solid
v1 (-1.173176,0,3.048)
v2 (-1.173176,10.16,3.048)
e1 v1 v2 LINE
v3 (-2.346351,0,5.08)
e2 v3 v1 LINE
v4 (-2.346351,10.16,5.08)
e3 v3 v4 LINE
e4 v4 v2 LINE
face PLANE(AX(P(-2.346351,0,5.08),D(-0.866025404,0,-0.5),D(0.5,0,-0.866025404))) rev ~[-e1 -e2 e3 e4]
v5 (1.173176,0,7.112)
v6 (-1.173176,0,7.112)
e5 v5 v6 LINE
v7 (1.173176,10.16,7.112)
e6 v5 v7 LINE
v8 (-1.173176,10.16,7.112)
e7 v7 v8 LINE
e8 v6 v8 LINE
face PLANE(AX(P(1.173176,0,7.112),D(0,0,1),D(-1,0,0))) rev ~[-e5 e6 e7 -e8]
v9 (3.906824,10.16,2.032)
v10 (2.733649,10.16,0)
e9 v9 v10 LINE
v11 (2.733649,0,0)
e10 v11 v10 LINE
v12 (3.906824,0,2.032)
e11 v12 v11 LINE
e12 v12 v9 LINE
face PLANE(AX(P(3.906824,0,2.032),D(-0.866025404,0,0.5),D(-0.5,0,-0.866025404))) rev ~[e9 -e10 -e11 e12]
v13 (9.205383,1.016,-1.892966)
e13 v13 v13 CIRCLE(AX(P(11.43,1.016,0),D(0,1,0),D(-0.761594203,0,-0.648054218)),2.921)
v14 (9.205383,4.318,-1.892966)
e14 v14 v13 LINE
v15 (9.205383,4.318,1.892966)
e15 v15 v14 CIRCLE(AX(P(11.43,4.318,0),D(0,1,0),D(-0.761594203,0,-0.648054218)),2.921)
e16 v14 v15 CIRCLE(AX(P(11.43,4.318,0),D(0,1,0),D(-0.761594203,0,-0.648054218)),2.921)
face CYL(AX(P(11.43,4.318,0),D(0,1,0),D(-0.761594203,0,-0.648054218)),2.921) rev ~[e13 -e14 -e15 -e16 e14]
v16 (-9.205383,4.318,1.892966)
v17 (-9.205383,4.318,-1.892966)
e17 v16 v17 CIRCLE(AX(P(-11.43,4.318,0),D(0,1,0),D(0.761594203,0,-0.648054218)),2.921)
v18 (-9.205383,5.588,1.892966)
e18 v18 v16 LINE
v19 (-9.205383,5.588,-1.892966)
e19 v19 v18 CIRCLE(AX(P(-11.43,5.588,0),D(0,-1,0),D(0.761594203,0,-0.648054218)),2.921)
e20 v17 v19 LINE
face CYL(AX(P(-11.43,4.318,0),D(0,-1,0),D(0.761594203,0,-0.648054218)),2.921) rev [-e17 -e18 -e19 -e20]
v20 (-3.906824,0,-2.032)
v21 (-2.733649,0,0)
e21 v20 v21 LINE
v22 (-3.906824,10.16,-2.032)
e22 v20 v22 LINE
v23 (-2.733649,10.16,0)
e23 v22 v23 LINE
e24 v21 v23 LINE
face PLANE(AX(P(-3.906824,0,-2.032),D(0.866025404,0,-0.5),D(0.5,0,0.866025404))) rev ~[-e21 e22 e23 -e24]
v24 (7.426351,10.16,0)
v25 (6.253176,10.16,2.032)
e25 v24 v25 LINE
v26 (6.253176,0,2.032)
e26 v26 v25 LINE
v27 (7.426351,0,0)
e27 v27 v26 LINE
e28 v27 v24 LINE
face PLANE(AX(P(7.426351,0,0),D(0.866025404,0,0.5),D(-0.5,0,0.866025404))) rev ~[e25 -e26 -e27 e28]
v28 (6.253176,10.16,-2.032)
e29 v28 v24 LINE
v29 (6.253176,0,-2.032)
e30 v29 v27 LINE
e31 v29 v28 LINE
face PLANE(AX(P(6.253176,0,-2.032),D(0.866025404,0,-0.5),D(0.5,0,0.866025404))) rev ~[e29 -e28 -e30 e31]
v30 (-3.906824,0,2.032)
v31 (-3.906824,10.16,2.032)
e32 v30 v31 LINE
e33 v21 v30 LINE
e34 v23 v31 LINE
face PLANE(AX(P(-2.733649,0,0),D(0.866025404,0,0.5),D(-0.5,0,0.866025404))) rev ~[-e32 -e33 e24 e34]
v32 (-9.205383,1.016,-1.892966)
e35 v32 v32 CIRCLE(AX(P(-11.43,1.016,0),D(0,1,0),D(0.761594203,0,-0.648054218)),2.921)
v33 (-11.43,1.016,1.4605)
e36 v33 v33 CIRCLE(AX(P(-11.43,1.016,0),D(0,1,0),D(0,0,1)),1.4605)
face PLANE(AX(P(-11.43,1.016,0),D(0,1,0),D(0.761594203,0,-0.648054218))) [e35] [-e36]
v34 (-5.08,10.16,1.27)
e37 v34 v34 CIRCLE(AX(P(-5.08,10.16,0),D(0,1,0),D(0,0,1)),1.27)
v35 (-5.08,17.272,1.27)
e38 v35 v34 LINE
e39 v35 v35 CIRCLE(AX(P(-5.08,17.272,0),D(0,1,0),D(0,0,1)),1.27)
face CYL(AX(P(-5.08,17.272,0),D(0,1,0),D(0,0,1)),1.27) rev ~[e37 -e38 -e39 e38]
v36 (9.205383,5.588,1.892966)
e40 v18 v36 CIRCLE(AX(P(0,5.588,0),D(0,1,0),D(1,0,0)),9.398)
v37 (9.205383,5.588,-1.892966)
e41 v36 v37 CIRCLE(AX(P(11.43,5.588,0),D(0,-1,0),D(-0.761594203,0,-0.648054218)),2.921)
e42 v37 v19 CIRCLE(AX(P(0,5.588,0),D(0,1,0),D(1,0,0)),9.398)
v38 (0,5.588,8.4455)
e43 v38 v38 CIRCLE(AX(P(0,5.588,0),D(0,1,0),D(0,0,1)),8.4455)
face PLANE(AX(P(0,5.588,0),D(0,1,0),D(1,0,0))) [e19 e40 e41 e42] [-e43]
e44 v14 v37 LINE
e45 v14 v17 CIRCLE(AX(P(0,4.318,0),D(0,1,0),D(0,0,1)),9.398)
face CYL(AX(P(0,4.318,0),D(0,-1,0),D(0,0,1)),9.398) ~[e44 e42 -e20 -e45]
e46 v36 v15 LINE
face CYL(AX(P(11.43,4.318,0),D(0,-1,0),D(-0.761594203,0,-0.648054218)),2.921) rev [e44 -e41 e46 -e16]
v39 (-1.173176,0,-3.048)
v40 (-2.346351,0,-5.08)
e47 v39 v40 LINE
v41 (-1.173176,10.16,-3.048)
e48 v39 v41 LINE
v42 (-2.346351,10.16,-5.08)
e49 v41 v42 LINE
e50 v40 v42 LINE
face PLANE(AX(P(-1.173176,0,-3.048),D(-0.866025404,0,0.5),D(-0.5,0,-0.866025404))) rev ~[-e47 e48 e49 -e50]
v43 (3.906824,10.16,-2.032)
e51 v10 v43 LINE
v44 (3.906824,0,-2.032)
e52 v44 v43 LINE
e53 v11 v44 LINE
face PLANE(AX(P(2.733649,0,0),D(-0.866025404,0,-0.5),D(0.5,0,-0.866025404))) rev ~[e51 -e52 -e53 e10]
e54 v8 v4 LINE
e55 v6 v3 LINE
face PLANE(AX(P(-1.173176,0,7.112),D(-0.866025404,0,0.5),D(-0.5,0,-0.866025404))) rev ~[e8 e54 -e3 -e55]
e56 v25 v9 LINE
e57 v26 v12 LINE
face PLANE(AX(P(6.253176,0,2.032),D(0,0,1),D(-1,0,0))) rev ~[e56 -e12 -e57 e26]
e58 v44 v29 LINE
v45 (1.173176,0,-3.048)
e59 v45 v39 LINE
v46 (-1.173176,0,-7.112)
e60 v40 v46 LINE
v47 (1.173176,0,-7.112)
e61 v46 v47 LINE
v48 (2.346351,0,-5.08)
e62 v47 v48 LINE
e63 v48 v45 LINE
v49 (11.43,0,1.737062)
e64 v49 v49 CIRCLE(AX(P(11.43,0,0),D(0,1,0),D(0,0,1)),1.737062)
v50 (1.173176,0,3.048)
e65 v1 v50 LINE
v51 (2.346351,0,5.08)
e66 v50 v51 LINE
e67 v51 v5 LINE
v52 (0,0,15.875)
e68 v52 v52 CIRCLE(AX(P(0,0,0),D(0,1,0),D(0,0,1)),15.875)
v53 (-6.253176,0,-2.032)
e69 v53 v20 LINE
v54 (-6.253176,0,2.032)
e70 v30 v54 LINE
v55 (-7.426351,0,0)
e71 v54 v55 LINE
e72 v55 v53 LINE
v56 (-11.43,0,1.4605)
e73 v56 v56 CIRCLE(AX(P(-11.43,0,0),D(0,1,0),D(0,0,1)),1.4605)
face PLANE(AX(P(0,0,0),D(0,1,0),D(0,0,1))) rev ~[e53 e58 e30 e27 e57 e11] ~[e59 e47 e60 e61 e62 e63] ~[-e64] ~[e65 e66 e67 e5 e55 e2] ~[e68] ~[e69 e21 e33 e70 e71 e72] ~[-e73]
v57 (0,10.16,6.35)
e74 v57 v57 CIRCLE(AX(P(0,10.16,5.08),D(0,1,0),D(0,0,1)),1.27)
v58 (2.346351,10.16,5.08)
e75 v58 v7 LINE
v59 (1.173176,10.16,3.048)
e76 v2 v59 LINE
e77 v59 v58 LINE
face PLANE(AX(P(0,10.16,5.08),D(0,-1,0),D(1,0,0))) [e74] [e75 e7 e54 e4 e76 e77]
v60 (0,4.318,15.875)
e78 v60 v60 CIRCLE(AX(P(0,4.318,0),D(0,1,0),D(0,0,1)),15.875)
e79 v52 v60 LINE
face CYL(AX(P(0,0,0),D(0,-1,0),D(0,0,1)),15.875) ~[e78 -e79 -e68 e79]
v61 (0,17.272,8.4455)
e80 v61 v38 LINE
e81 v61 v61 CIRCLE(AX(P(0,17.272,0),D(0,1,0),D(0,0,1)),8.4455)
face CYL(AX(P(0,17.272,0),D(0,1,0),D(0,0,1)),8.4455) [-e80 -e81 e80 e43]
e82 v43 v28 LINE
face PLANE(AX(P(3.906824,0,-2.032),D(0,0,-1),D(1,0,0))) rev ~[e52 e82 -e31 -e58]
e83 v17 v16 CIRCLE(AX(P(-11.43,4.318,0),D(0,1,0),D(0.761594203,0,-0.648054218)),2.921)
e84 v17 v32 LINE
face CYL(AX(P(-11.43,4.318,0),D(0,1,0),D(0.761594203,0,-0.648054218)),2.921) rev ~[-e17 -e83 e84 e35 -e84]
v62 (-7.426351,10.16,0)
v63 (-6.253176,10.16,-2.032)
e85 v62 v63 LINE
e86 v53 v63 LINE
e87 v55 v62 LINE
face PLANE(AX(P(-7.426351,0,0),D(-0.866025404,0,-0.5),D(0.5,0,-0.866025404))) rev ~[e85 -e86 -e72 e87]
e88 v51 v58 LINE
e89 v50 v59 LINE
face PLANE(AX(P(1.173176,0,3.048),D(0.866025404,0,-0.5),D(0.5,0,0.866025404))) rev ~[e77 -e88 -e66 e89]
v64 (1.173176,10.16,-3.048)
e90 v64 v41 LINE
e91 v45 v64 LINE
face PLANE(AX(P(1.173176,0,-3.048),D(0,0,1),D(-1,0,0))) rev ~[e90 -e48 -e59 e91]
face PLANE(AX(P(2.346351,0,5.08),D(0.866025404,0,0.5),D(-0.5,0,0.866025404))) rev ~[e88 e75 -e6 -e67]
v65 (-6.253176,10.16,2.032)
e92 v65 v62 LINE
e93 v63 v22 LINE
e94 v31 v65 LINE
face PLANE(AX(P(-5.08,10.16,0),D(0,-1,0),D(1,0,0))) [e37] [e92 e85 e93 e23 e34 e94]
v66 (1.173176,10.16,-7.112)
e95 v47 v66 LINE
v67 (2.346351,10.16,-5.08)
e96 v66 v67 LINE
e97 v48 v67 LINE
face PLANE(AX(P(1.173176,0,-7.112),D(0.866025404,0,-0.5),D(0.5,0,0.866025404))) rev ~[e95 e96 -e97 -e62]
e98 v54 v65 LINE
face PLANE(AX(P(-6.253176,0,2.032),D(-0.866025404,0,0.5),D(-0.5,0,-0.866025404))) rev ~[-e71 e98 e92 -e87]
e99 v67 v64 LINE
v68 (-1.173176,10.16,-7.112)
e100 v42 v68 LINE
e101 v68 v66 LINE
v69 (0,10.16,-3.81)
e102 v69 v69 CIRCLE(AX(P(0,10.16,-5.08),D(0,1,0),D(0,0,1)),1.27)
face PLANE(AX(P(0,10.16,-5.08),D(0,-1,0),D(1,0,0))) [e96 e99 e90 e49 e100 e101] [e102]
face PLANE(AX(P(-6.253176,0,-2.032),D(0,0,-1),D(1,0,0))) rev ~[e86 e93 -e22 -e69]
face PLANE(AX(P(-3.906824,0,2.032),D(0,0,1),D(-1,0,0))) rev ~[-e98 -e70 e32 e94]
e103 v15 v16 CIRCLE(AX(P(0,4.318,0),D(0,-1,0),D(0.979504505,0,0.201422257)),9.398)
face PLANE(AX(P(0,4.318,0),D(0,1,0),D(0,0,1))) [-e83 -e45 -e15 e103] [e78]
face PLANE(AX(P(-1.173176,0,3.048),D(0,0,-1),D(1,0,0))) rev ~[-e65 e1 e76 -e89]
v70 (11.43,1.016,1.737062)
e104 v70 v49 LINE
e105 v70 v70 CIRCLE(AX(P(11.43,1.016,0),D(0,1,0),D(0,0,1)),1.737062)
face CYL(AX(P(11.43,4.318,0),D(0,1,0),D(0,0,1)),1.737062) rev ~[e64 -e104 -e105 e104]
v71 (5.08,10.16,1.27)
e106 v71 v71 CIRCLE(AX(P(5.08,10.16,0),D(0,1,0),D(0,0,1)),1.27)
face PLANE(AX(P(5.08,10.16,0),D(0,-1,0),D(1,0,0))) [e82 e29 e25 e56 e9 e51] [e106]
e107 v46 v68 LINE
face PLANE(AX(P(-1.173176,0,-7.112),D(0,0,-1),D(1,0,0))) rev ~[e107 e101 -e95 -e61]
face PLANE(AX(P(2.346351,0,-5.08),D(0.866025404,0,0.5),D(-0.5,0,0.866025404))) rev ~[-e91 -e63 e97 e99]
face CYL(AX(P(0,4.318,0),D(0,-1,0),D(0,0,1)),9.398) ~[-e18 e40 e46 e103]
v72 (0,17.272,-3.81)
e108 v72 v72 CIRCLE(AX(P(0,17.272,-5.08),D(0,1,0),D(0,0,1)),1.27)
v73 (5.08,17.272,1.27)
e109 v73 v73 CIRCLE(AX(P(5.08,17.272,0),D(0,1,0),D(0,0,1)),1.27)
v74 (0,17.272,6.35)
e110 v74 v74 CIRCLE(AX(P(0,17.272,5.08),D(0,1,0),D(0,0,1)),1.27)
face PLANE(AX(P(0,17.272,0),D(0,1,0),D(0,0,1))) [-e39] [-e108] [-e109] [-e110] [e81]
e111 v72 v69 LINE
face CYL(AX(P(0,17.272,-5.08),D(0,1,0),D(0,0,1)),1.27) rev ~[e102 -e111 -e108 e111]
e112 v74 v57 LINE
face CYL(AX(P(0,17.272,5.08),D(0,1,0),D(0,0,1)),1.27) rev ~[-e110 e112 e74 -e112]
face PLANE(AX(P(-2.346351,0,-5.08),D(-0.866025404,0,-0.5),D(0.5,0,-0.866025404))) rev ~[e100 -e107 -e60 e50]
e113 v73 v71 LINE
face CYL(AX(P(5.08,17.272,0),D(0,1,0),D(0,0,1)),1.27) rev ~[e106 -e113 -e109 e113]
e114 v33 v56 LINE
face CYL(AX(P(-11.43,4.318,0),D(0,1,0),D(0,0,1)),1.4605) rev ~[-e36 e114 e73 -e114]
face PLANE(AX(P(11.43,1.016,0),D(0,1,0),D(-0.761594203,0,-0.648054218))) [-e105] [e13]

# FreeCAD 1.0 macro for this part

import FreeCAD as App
import Part
import Sketcher

V = App.Vector
Q = App.Units.Quantity


def add_polygon(sketch, points):
    """Adds a closed chain of lines whose ends are joined by coincident constraints."""
    first, n = sketch.GeometryCount, len(points)
    for a, b in zip(points, points[1:] + points[:1]):
        sketch.addGeometry(Part.LineSegment(App.Vector(*a, 0), App.Vector(*b, 0)), False)
    for i in range(n):
        sketch.addConstraint(Sketcher.Constraint("Coincident", first + i, 2, first + (i + 1) % n, 1))

doc = App.newDocument("Part")
body = doc.addObject("PartDesign::Body", "Body")

sketch1 = doc.addObject("Sketcher::SketchObject", "Sketch")
body.addObject(sketch1)
sketch1.AttachmentSupport = (doc.XZ_Plane, [""])
sketch1.MapMode = "FlatFace"
sketch1.addGeometry(Part.Circle(V(0, 0, 0), V(0, 0, 1), 15.875), False)
sketch1.addConstraint([
    Sketcher.Constraint("Coincident", 0, 3, -1, 1),
    Sketcher.Constraint("Diameter", 0, Q("1.25 in")),
])
pad1 = doc.addObject("PartDesign::Pad", "Pad")
body.addObject(pad1)
pad1.Profile = sketch1
pad1.Length = Q("0.17 in")
pad1.Reversed = True

sketch2 = doc.addObject("Sketcher::SketchObject", "Sketch001")
body.addObject(sketch2)
sketch2.AttachmentSupport = (doc.XZ_Plane, [""])
sketch2.MapMode = "FlatFace"
sketch2.AttachmentOffset = App.Placement(V(0, 0, -0.17 * 25.4), App.Rotation())
sketch2.addGeometry(Part.Circle(V(0, 0, 0), V(0, 0, 1), 9.398), False)
sketch2.addConstraint([
    Sketcher.Constraint("Coincident", 0, 3, -1, 1),
    Sketcher.Constraint("Diameter", 0, Q("0.74 in")),
])
pad2 = doc.addObject("PartDesign::Pad", "Pad001")
body.addObject(pad2)
pad2.Profile = sketch2
pad2.Length = Q("0.51 in")
pad2.Reversed = True

sketch3 = doc.addObject("Sketcher::SketchObject", "Sketch002")
body.addObject(sketch3)
sketch3.AttachmentSupport = (doc.XZ_Plane, [""])
sketch3.MapMode = "FlatFace"
sketch3.AttachmentOffset = App.Placement(V(0, 0, -0.17 * 25.4), App.Rotation())
sketch3.addGeometry([
    Part.Circle(V(-11.43, 0, 0), V(0, 0, 1), 2.921),
    Part.Circle(V(11.43, 0, 0), V(0, 0, 1), 2.921),
], False)
sketch3.addConstraint([
    Sketcher.Constraint("Equal", 0, 1),
    Sketcher.Constraint("Symmetric", 0, 3, 1, 3, -1, 1),
    Sketcher.Constraint("PointOnObject", 0, 3, -1),
    Sketcher.Constraint("Diameter", 0, Q("0.23 in")),
    Sketcher.Constraint("DistanceX", 0, 3, 1, 3, Q("0.9 in")),
])
pocket1 = doc.addObject("PartDesign::Pocket", "Pocket")
body.addObject(pocket1)
pocket1.Profile = sketch3
pocket1.Type = "TwoLengths"
pocket1.Length = 26.919826
pocket1.Length2 = Q("0.13 in")

sketch4 = doc.addObject("Sketcher::SketchObject", "Sketch003")
body.addObject(sketch4)
sketch4.AttachmentSupport = (doc.XZ_Plane, [""])
sketch4.MapMode = "FlatFace"
sketch4.AttachmentOffset = App.Placement(V(0, 0, -0.17 * 25.4), App.Rotation())
sketch4.addGeometry([
    Part.Circle(V(-11.43, 0, 0), V(0, 0, 1), 1.4605),
    Part.Circle(V(11.43, 0, 0), V(0, 0, 1), 1.737062),
], False)
sketch4.addConstraint([
    Sketcher.Constraint("Symmetric", 0, 3, 1, 3, -1, 1),
    Sketcher.Constraint("PointOnObject", 0, 3, -1),
    Sketcher.Constraint("Diameter", 0, Q("0.115 in")),
    Sketcher.Constraint("DistanceX", 0, 3, 1, 3, Q("0.9 in")),
    Sketcher.Constraint("Diameter", 1, 3.474125),
])
pocket2 = doc.addObject("PartDesign::Pocket", "Pocket001")
body.addObject(pocket2)
pocket2.Profile = sketch4
pocket2.Type = "ThroughAll"
pocket2.Midplane = True

sketch5 = doc.addObject("Sketcher::SketchObject", "Sketch004")
body.addObject(sketch5)
sketch5.AttachmentSupport = (doc.XZ_Plane, [""])
sketch5.MapMode = "FlatFace"
sketch5.AttachmentOffset = App.Placement(V(0, 0, -0.68 * 25.4), App.Rotation())
sketch5.addGeometry([
    Part.Circle(V(0, -5.08, 0), V(0, 0, 1), 1.27),
    Part.Circle(V(0, 5.08, 0), V(0, 0, 1), 1.27),
    Part.Circle(V(5.08, 0, 0), V(0, 0, 1), 1.27),
    Part.Circle(V(-5.08, 0, 0), V(0, 0, 1), 1.27),
], False)
sketch5.addConstraint([
    Sketcher.Constraint("Equal", 0, 1),
    Sketcher.Constraint("Equal", 1, 2),
    Sketcher.Constraint("Equal", 2, 3),
    Sketcher.Constraint("Symmetric", 0, 3, 1, 3, -1, 1),
    Sketcher.Constraint("Symmetric", 2, 3, 3, 3, -1, 1),
    Sketcher.Constraint("PointOnObject", 0, 3, -2),
    Sketcher.Constraint("PointOnObject", 2, 3, -1),
    Sketcher.Constraint("Diameter", 0, Q("0.1 in")),
    Sketcher.Constraint("DistanceY", 0, 3, -1, 1, Q("0.2 in")),
    Sketcher.Constraint("DistanceX", -1, 1, 2, 3, Q("0.2 in")),
])
pocket3 = doc.addObject("PartDesign::Pocket", "Pocket002")
body.addObject(pocket3)
pocket3.Profile = sketch5
pocket3.Type = "ThroughAll"
pocket3.Reversed = True

sketch6 = doc.addObject("Sketcher::SketchObject", "Sketch005")
body.addObject(sketch6)
sketch6.AttachmentSupport = (doc.XZ_Plane, [""])
sketch6.MapMode = "FlatFace"
sketch6.AttachmentOffset = App.Placement(V(0, 0, -0.68 * 25.4), App.Rotation())
sketch6.addGeometry([
    Part.Circle(V(0, 0, 0), V(0, 0, 1), 9.398),
    Part.Circle(V(0, 0, 0), V(0, 0, 1), 8.4455),
], False)
sketch6.addConstraint([
    Sketcher.Constraint("Coincident", 0, 3, -1, 1),
    Sketcher.Constraint("Coincident", 1, 3, -1, 1),
    Sketcher.Constraint("Diameter", 0, Q("0.74 in")),
    Sketcher.Constraint("Diameter", 1, Q("0.665 in")),
])
pocket4 = doc.addObject("PartDesign::Pocket", "Pocket003")
body.addObject(pocket4)
pocket4.Profile = sketch6
pocket4.Length = Q("0.46 in")
pocket4.Reversed = True

sketch7 = doc.addObject("Sketcher::SketchObject", "Sketch006")
body.addObject(sketch7)
sketch7.AttachmentSupport = (doc.XZ_Plane, [""])
sketch7.MapMode = "FlatFace"
add_polygon(sketch7, [(7.426351, 0), (6.253176, 2.032), (3.906824, 2.032), (2.733649, 0), (3.906824, -2.032), (6.253176, -2.032)])
add_polygon(sketch7, [(2.346351, -5.08), (1.173176, -3.048), (-1.173176, -3.048), (-2.346351, -5.08), (-1.173176, -7.112), (1.173176, -7.112)])
add_polygon(sketch7, [(-2.733649, 0), (-3.906824, 2.032), (-6.253176, 2.032), (-7.426351, 0), (-6.253176, -2.032), (-3.906824, -2.032)])
add_polygon(sketch7, [(2.346351, 5.08), (1.173176, 7.112), (-1.173176, 7.112), (-2.346351, 5.08), (-1.173176, 3.048), (1.173176, 3.048)])
sketch7.addConstraint([
    Sketcher.Constraint("Horizontal", 1),
    Sketcher.Constraint("Horizontal", 4),
    Sketcher.Constraint("Horizontal", 7),
    Sketcher.Constraint("Horizontal", 10),
    Sketcher.Constraint("Horizontal", 13),
    Sketcher.Constraint("Horizontal", 16),
    Sketcher.Constraint("Horizontal", 19),
    Sketcher.Constraint("Horizontal", 22),
    Sketcher.Constraint("Symmetric", 3, 2, 12, 2, -1, 1),
    Sketcher.Constraint("Symmetric", 5, 2, 14, 2, -1, 1),
    Sketcher.Constraint("Symmetric", 0, 2, 15, 2, -1, 1),
    Sketcher.Constraint("Symmetric", 2, 2, 17, 2, -1, 1),
    Sketcher.Constraint("Symmetric", 9, 2, 18, 2, -1, 1),
    Sketcher.Constraint("Symmetric", 11, 2, 20, 2, -1, 1),
    Sketcher.Constraint("Symmetric", 6, 2, 21, 2, -1, 1),
    Sketcher.Constraint("Symmetric", 8, 2, 23, 2, -1, 1),
    Sketcher.Constraint("Symmetric", 8, 2, 11, 2, -2),
    Sketcher.Constraint("Symmetric", 1, 2, 12, 2, -2),
    Sketcher.Constraint("PointOnObject", 2, 2, -1),
    Sketcher.Constraint("PointOnObject", 5, 2, -1),
    Sketcher.Constraint("Parallel", 0, 3),
    Sketcher.Constraint("Parallel", 2, 5),
    Sketcher.Constraint("Parallel", 3, 6),
    Sketcher.Constraint("Parallel", 5, 8),
    Sketcher.Constraint("Parallel", 6, 9),
    Sketcher.Constraint("Parallel", 8, 11),
    Sketcher.Constraint("Parallel", 11, 14),
    Sketcher.Constraint("Parallel", 14, 17),
    Sketcher.Constraint("Parallel", 17, 20),
    Sketcher.Constraint("Parallel", 20, 23),
    Sketcher.Constraint("Vertical", 7, 2, 9, 2),
    Sketcher.Constraint("Equal", 4, 7),
    Sketcher.Constraint("Equal", 5, 6),
    Sketcher.Constraint("Angle", 0, Q("120 deg")),
    Sketcher.Constraint("DistanceY", 8, 2, -1, 1, Q("0.2 in")),
    Sketcher.Constraint("DistanceX", 6, 2, 4, 2, Q("0.2 in")),
    Sketcher.Constraint("DistanceY", -1, 1, 0, 2, Q("0.08 in")),
    Sketcher.Constraint("DistanceX", 1, 2, 1, 1, 2.346351),
])
pocket5 = doc.addObject("PartDesign::Pocket", "Pocket004")
body.addObject(pocket5)
pocket5.Profile = sketch7
pocket5.Length = Q("0.4 in")

doc.recompute()
